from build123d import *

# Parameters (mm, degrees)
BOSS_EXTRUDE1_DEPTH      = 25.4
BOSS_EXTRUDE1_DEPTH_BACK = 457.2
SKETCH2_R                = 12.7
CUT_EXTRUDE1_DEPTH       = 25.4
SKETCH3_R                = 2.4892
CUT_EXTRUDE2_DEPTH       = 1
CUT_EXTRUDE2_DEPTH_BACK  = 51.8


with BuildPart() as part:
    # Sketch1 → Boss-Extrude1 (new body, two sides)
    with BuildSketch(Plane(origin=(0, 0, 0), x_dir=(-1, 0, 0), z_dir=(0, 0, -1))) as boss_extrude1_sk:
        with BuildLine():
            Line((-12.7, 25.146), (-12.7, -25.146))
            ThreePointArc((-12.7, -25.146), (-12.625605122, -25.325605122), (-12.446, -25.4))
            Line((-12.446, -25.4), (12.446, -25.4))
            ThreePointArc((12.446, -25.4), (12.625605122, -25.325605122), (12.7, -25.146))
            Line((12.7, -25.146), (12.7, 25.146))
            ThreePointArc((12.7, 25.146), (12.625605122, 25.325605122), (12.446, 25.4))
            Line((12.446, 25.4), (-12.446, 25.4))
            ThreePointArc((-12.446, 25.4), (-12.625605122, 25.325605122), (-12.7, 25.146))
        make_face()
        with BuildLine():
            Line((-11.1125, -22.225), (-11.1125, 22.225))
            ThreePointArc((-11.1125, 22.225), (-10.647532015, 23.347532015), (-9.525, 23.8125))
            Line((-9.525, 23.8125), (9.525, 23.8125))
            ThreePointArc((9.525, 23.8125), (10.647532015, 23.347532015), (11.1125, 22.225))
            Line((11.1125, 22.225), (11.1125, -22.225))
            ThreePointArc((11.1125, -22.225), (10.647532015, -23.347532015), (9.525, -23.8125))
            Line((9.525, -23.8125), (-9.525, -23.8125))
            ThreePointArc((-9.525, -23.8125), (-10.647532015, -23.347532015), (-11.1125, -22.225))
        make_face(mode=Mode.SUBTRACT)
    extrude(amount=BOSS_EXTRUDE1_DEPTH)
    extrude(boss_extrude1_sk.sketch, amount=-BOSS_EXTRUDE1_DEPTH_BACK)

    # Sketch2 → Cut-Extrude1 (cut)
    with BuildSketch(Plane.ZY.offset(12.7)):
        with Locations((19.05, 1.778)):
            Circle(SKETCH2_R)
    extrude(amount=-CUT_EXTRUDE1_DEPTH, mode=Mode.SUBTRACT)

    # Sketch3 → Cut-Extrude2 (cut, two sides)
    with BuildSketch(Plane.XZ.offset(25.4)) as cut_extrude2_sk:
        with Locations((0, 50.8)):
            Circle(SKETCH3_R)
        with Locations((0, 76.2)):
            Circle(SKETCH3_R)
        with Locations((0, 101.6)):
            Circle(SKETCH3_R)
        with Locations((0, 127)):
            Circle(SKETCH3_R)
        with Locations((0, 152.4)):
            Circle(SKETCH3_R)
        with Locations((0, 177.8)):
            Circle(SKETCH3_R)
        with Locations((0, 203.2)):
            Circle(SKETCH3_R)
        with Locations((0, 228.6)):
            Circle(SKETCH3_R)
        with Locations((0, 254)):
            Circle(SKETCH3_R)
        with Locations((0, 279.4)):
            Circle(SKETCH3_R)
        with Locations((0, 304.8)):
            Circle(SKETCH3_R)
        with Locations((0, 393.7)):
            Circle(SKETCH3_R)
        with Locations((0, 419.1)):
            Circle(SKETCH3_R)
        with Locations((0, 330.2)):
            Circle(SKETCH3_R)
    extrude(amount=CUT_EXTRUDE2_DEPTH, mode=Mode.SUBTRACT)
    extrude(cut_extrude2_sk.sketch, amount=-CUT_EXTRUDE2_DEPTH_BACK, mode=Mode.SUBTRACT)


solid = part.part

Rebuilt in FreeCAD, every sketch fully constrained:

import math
import FreeCAD as App
import Part
import Sketcher
from FreeCAD import Vector
Q = App.Units.Quantity

doc = App.newDocument("Part")
body = doc.addObject("PartDesign::Body", "Body")

sketch1 = body.newObject("Sketcher::SketchObject", "Sketch")
sketch1.AttachmentSupport = (doc.getObject("XY_Plane"), [""])
sketch1.MapMode = "FlatFace"
sketch1.addGeometry([
    Part.LineSegment(Vector(12.7, 25.15, 0), Vector(12.7, -25.15, 0)),
    Part.ArcOfCircle(Part.Circle(Vector(12.45, -25.15, 0), Vector(0, 0, 1), 0.25), math.radians(-90), math.radians(0)),
    Part.LineSegment(Vector(12.45, -25.4, 0), Vector(-12.45, -25.4, 0)),
    Part.ArcOfCircle(Part.Circle(Vector(-12.45, -25.15, 0), Vector(0, 0, 1), 0.25), math.radians(-180), math.radians(-90)),
    Part.LineSegment(Vector(-12.7, -25.15, 0), Vector(-12.7, 25.15, 0)),
    Part.ArcOfCircle(Part.Circle(Vector(-12.45, 25.15, 0), Vector(0, 0, 1), 0.25), math.radians(90), math.radians(180)),
    Part.LineSegment(Vector(-12.45, 25.4, 0), Vector(12.45, 25.4, 0)),
    Part.ArcOfCircle(Part.Circle(Vector(12.45, 25.15, 0), Vector(0, 0, 1), 0.25), math.radians(0), math.radians(90)),
    Part.ArcOfCircle(Part.Circle(Vector(9.53, -22.23, 0), Vector(0, 0, 1), 1.59), math.radians(-90), math.radians(0)),
    Part.LineSegment(Vector(11.11, -22.23, 0), Vector(11.11, 22.23, 0)),
    Part.ArcOfCircle(Part.Circle(Vector(9.53, 22.23, 0), Vector(0, 0, 1), 1.59), math.radians(0), math.radians(90)),
    Part.LineSegment(Vector(9.53, 23.81, 0), Vector(-9.53, 23.81, 0)),
    Part.ArcOfCircle(Part.Circle(Vector(-9.53, 22.23, 0), Vector(0, 0, 1), 1.59), math.radians(90), math.radians(180)),
    Part.LineSegment(Vector(-11.11, 22.23, 0), Vector(-11.11, -22.23, 0)),
    Part.ArcOfCircle(Part.Circle(Vector(-9.53, -22.23, 0), Vector(0, 0, 1), 1.59), math.radians(180), math.radians(270)),
    Part.LineSegment(Vector(-9.53, -23.81, 0), Vector(9.53, -23.81, 0)),
], False)
sketch1.addConstraint([
    Sketcher.Constraint("Tangent", 0, 2, 1, 2),
    Sketcher.Constraint("Tangent", 1, 1, 2, 1),
    Sketcher.Constraint("Tangent", 2, 2, 3, 2),
    Sketcher.Constraint("Tangent", 3, 1, 4, 1),
    Sketcher.Constraint("Tangent", 4, 2, 5, 2),
    Sketcher.Constraint("Tangent", 5, 1, 6, 1),
    Sketcher.Constraint("Tangent", 6, 2, 7, 2),
    Sketcher.Constraint("Tangent", 7, 1, 0, 1),
    Sketcher.Constraint("Tangent", 8, 2, 9, 1),
    Sketcher.Constraint("Tangent", 9, 2, 10, 1),
    Sketcher.Constraint("Tangent", 10, 2, 11, 1),
    Sketcher.Constraint("Tangent", 11, 2, 12, 1),
    Sketcher.Constraint("Tangent", 12, 2, 13, 1),
    Sketcher.Constraint("Tangent", 13, 2, 14, 1),
    Sketcher.Constraint("Tangent", 14, 2, 15, 1),
    Sketcher.Constraint("Tangent", 15, 2, 8, 1),
    Sketcher.Constraint("Vertical", 0),
    Sketcher.Constraint("Horizontal", 2),
    Sketcher.Constraint("Vertical", 4),
    Sketcher.Constraint("Horizontal", 6),
    Sketcher.Constraint("Vertical", 9),
    Sketcher.Constraint("Horizontal", 11),
    Sketcher.Constraint("Vertical", 13),
    Sketcher.Constraint("Horizontal", 15),
    Sketcher.Constraint("Equal", 1, 3),
    Sketcher.Constraint("Equal", 3, 5),
    Sketcher.Constraint("Equal", 5, 7),
    Sketcher.Constraint("Equal", 8, 10),
    Sketcher.Constraint("Equal", 10, 12),
    Sketcher.Constraint("Equal", 12, 14),
    Sketcher.Constraint("Symmetric", 1, 3, 5, 3, -1, 1),
    Sketcher.Constraint("Symmetric", 8, 3, 12, 3, -1, 1),
    Sketcher.Constraint("Radius", 1, Q("0.01 in")),
    Sketcher.Constraint("DistanceY", 1, 1, -1, 1, Q("1 in")),
    Sketcher.Constraint("Radius", 8, Q("0.0625 in")),
    Sketcher.Constraint("DistanceX", 2, 2, 2, 1, Q("0.98 in")),
    Sketcher.Constraint("DistanceX", 11, 2, 11, 1, Q("0.75 in")),
    Sketcher.Constraint("DistanceY", 9, 1, 9, 2, Q("1.75 in")),
])
pad1 = body.newObject("PartDesign::Pad", "Pad")
pad1.Profile = sketch1
pad1.Type = "TwoLengths"
pad1.Length = Q("1 in")
pad1.Length2 = Q("18 in")
pad1.Reversed = True

sketch2 = body.newObject("Sketcher::SketchObject", "Sketch001")
sketch2.AttachmentSupport = (doc.getObject("YZ_Plane"), [""])
sketch2.MapMode = "FlatFace"
sketch2.AttachmentOffset = App.Placement(Vector(0, 0, -0.5 * 25.4), App.Rotation())
sketch2.addGeometry(Part.Circle(Vector(2, 19, 0), Vector(0, 0, 1), 13), False)
sketch2.addConstraint([
    Sketcher.Constraint("Diameter", 0, Q("1 in")),
    Sketcher.Constraint("DistanceX", -1, 1, 0, 3, Q("0.07 in")),
    Sketcher.Constraint("DistanceY", -1, 1, 0, 3, Q("0.75 in")),
])
pocket1 = body.newObject("PartDesign::Pocket", "Pocket")
pocket1.Profile = sketch2
pocket1.Length = Q("1 in")
pocket1.Reversed = True

sketch3 = body.newObject("Sketcher::SketchObject", "Sketch002")
sketch3.AttachmentSupport = (doc.getObject("XZ_Plane"), [""])
sketch3.MapMode = "FlatFace"
sketch3.AttachmentOffset = App.Placement(Vector(0, 0, 1 * 25.4), App.Rotation())
sketch3.addGeometry([
    Part.Circle(Vector(0, 50.8, 0), Vector(0, 0, 1), 2.5),
    Part.Circle(Vector(0, 76.2, 0), Vector(0, 0, 1), 2.5),
    Part.Circle(Vector(0, 101.6, 0), Vector(0, 0, 1), 2.5),
    Part.Circle(Vector(0, 127, 0), Vector(0, 0, 1), 2.5),
    Part.Circle(Vector(0, 152.4, 0), Vector(0, 0, 1), 2.5),
    Part.Circle(Vector(0, 177.8, 0), Vector(0, 0, 1), 2.5),
    Part.Circle(Vector(0, 203.2, 0), Vector(0, 0, 1), 2.5),
    Part.Circle(Vector(0, 228.6, 0), Vector(0, 0, 1), 2.5),
    Part.Circle(Vector(0, 254, 0), Vector(0, 0, 1), 2.5),
    Part.Circle(Vector(0, 279.4, 0), Vector(0, 0, 1), 2.5),
    Part.Circle(Vector(0, 304.8, 0), Vector(0, 0, 1), 2.5),
    Part.Circle(Vector(0, 393.7, 0), Vector(0, 0, 1), 2.5),
    Part.Circle(Vector(0, 419.1, 0), Vector(0, 0, 1), 2.5),
    Part.Circle(Vector(0, 330.2, 0), Vector(0, 0, 1), 2.5),
], False)
sketch3.addConstraint([
    Sketcher.Constraint("Equal", 0, 1),
    Sketcher.Constraint("Equal", 1, 2),
    Sketcher.Constraint("Equal", 2, 3),
    Sketcher.Constraint("Equal", 3, 4),
    Sketcher.Constraint("Equal", 4, 5),
    Sketcher.Constraint("Equal", 5, 6),
    Sketcher.Constraint("Equal", 6, 7),
    Sketcher.Constraint("Equal", 7, 8),
    Sketcher.Constraint("Equal", 8, 9),
    Sketcher.Constraint("Equal", 9, 10),
    Sketcher.Constraint("Equal", 10, 11),
    Sketcher.Constraint("Equal", 11, 12),
    Sketcher.Constraint("Equal", 12, 13),
    Sketcher.Constraint("PointOnObject", 0, 3, -2),
    Sketcher.Constraint("PointOnObject", 1, 3, -2),
    Sketcher.Constraint("PointOnObject", 2, 3, -2),
    Sketcher.Constraint("PointOnObject", 3, 3, -2),
    Sketcher.Constraint("PointOnObject", 4, 3, -2),
    Sketcher.Constraint("PointOnObject", 5, 3, -2),
    Sketcher.Constraint("PointOnObject", 6, 3, -2),
    Sketcher.Constraint("PointOnObject", 7, 3, -2),
    Sketcher.Constraint("PointOnObject", 8, 3, -2),
    Sketcher.Constraint("PointOnObject", 9, 3, -2),
    Sketcher.Constraint("PointOnObject", 10, 3, -2),
    Sketcher.Constraint("PointOnObject", 11, 3, -2),
    Sketcher.Constraint("PointOnObject", 12, 3, -2),
    Sketcher.Constraint("PointOnObject", 13, 3, -2),
    Sketcher.Constraint("Diameter", 0, Q("0.196 in")),
    Sketcher.Constraint("DistanceY", -1, 1, 0, 3, Q("2 in")),
    Sketcher.Constraint("DistanceY", -1, 1, 1, 3, Q("3 in")),
    Sketcher.Constraint("DistanceY", -1, 1, 2, 3, Q("4 in")),
    Sketcher.Constraint("DistanceY", -1, 1, 3, 3, Q("5 in")),
    Sketcher.Constraint("DistanceY", -1, 1, 4, 3, Q("6 in")),
    Sketcher.Constraint("DistanceY", -1, 1, 5, 3, Q("7 in")),
    Sketcher.Constraint("DistanceY", -1, 1, 6, 3, Q("8 in")),
    Sketcher.Constraint("DistanceY", -1, 1, 7, 3, Q("9 in")),
    Sketcher.Constraint("DistanceY", -1, 1, 8, 3, Q("10 in")),
    Sketcher.Constraint("DistanceY", -1, 1, 9, 3, Q("11 in")),
    Sketcher.Constraint("DistanceY", -1, 1, 10, 3, Q("12 in")),
    Sketcher.Constraint("DistanceY", -1, 1, 13, 3, Q("13 in")),
    Sketcher.Constraint("DistanceY", 11, 3, 12, 3, Q("1 in")),
    Sketcher.Constraint("DistanceY", -1, 1, 11, 3, Q("15.5 in")),
])
pocket2 = body.newObject("PartDesign::Pocket", "Pocket001")
pocket2.Profile = sketch3
pocket2.Type = "ThroughAll"
pocket2.Midplane = True

doc.recompute()
